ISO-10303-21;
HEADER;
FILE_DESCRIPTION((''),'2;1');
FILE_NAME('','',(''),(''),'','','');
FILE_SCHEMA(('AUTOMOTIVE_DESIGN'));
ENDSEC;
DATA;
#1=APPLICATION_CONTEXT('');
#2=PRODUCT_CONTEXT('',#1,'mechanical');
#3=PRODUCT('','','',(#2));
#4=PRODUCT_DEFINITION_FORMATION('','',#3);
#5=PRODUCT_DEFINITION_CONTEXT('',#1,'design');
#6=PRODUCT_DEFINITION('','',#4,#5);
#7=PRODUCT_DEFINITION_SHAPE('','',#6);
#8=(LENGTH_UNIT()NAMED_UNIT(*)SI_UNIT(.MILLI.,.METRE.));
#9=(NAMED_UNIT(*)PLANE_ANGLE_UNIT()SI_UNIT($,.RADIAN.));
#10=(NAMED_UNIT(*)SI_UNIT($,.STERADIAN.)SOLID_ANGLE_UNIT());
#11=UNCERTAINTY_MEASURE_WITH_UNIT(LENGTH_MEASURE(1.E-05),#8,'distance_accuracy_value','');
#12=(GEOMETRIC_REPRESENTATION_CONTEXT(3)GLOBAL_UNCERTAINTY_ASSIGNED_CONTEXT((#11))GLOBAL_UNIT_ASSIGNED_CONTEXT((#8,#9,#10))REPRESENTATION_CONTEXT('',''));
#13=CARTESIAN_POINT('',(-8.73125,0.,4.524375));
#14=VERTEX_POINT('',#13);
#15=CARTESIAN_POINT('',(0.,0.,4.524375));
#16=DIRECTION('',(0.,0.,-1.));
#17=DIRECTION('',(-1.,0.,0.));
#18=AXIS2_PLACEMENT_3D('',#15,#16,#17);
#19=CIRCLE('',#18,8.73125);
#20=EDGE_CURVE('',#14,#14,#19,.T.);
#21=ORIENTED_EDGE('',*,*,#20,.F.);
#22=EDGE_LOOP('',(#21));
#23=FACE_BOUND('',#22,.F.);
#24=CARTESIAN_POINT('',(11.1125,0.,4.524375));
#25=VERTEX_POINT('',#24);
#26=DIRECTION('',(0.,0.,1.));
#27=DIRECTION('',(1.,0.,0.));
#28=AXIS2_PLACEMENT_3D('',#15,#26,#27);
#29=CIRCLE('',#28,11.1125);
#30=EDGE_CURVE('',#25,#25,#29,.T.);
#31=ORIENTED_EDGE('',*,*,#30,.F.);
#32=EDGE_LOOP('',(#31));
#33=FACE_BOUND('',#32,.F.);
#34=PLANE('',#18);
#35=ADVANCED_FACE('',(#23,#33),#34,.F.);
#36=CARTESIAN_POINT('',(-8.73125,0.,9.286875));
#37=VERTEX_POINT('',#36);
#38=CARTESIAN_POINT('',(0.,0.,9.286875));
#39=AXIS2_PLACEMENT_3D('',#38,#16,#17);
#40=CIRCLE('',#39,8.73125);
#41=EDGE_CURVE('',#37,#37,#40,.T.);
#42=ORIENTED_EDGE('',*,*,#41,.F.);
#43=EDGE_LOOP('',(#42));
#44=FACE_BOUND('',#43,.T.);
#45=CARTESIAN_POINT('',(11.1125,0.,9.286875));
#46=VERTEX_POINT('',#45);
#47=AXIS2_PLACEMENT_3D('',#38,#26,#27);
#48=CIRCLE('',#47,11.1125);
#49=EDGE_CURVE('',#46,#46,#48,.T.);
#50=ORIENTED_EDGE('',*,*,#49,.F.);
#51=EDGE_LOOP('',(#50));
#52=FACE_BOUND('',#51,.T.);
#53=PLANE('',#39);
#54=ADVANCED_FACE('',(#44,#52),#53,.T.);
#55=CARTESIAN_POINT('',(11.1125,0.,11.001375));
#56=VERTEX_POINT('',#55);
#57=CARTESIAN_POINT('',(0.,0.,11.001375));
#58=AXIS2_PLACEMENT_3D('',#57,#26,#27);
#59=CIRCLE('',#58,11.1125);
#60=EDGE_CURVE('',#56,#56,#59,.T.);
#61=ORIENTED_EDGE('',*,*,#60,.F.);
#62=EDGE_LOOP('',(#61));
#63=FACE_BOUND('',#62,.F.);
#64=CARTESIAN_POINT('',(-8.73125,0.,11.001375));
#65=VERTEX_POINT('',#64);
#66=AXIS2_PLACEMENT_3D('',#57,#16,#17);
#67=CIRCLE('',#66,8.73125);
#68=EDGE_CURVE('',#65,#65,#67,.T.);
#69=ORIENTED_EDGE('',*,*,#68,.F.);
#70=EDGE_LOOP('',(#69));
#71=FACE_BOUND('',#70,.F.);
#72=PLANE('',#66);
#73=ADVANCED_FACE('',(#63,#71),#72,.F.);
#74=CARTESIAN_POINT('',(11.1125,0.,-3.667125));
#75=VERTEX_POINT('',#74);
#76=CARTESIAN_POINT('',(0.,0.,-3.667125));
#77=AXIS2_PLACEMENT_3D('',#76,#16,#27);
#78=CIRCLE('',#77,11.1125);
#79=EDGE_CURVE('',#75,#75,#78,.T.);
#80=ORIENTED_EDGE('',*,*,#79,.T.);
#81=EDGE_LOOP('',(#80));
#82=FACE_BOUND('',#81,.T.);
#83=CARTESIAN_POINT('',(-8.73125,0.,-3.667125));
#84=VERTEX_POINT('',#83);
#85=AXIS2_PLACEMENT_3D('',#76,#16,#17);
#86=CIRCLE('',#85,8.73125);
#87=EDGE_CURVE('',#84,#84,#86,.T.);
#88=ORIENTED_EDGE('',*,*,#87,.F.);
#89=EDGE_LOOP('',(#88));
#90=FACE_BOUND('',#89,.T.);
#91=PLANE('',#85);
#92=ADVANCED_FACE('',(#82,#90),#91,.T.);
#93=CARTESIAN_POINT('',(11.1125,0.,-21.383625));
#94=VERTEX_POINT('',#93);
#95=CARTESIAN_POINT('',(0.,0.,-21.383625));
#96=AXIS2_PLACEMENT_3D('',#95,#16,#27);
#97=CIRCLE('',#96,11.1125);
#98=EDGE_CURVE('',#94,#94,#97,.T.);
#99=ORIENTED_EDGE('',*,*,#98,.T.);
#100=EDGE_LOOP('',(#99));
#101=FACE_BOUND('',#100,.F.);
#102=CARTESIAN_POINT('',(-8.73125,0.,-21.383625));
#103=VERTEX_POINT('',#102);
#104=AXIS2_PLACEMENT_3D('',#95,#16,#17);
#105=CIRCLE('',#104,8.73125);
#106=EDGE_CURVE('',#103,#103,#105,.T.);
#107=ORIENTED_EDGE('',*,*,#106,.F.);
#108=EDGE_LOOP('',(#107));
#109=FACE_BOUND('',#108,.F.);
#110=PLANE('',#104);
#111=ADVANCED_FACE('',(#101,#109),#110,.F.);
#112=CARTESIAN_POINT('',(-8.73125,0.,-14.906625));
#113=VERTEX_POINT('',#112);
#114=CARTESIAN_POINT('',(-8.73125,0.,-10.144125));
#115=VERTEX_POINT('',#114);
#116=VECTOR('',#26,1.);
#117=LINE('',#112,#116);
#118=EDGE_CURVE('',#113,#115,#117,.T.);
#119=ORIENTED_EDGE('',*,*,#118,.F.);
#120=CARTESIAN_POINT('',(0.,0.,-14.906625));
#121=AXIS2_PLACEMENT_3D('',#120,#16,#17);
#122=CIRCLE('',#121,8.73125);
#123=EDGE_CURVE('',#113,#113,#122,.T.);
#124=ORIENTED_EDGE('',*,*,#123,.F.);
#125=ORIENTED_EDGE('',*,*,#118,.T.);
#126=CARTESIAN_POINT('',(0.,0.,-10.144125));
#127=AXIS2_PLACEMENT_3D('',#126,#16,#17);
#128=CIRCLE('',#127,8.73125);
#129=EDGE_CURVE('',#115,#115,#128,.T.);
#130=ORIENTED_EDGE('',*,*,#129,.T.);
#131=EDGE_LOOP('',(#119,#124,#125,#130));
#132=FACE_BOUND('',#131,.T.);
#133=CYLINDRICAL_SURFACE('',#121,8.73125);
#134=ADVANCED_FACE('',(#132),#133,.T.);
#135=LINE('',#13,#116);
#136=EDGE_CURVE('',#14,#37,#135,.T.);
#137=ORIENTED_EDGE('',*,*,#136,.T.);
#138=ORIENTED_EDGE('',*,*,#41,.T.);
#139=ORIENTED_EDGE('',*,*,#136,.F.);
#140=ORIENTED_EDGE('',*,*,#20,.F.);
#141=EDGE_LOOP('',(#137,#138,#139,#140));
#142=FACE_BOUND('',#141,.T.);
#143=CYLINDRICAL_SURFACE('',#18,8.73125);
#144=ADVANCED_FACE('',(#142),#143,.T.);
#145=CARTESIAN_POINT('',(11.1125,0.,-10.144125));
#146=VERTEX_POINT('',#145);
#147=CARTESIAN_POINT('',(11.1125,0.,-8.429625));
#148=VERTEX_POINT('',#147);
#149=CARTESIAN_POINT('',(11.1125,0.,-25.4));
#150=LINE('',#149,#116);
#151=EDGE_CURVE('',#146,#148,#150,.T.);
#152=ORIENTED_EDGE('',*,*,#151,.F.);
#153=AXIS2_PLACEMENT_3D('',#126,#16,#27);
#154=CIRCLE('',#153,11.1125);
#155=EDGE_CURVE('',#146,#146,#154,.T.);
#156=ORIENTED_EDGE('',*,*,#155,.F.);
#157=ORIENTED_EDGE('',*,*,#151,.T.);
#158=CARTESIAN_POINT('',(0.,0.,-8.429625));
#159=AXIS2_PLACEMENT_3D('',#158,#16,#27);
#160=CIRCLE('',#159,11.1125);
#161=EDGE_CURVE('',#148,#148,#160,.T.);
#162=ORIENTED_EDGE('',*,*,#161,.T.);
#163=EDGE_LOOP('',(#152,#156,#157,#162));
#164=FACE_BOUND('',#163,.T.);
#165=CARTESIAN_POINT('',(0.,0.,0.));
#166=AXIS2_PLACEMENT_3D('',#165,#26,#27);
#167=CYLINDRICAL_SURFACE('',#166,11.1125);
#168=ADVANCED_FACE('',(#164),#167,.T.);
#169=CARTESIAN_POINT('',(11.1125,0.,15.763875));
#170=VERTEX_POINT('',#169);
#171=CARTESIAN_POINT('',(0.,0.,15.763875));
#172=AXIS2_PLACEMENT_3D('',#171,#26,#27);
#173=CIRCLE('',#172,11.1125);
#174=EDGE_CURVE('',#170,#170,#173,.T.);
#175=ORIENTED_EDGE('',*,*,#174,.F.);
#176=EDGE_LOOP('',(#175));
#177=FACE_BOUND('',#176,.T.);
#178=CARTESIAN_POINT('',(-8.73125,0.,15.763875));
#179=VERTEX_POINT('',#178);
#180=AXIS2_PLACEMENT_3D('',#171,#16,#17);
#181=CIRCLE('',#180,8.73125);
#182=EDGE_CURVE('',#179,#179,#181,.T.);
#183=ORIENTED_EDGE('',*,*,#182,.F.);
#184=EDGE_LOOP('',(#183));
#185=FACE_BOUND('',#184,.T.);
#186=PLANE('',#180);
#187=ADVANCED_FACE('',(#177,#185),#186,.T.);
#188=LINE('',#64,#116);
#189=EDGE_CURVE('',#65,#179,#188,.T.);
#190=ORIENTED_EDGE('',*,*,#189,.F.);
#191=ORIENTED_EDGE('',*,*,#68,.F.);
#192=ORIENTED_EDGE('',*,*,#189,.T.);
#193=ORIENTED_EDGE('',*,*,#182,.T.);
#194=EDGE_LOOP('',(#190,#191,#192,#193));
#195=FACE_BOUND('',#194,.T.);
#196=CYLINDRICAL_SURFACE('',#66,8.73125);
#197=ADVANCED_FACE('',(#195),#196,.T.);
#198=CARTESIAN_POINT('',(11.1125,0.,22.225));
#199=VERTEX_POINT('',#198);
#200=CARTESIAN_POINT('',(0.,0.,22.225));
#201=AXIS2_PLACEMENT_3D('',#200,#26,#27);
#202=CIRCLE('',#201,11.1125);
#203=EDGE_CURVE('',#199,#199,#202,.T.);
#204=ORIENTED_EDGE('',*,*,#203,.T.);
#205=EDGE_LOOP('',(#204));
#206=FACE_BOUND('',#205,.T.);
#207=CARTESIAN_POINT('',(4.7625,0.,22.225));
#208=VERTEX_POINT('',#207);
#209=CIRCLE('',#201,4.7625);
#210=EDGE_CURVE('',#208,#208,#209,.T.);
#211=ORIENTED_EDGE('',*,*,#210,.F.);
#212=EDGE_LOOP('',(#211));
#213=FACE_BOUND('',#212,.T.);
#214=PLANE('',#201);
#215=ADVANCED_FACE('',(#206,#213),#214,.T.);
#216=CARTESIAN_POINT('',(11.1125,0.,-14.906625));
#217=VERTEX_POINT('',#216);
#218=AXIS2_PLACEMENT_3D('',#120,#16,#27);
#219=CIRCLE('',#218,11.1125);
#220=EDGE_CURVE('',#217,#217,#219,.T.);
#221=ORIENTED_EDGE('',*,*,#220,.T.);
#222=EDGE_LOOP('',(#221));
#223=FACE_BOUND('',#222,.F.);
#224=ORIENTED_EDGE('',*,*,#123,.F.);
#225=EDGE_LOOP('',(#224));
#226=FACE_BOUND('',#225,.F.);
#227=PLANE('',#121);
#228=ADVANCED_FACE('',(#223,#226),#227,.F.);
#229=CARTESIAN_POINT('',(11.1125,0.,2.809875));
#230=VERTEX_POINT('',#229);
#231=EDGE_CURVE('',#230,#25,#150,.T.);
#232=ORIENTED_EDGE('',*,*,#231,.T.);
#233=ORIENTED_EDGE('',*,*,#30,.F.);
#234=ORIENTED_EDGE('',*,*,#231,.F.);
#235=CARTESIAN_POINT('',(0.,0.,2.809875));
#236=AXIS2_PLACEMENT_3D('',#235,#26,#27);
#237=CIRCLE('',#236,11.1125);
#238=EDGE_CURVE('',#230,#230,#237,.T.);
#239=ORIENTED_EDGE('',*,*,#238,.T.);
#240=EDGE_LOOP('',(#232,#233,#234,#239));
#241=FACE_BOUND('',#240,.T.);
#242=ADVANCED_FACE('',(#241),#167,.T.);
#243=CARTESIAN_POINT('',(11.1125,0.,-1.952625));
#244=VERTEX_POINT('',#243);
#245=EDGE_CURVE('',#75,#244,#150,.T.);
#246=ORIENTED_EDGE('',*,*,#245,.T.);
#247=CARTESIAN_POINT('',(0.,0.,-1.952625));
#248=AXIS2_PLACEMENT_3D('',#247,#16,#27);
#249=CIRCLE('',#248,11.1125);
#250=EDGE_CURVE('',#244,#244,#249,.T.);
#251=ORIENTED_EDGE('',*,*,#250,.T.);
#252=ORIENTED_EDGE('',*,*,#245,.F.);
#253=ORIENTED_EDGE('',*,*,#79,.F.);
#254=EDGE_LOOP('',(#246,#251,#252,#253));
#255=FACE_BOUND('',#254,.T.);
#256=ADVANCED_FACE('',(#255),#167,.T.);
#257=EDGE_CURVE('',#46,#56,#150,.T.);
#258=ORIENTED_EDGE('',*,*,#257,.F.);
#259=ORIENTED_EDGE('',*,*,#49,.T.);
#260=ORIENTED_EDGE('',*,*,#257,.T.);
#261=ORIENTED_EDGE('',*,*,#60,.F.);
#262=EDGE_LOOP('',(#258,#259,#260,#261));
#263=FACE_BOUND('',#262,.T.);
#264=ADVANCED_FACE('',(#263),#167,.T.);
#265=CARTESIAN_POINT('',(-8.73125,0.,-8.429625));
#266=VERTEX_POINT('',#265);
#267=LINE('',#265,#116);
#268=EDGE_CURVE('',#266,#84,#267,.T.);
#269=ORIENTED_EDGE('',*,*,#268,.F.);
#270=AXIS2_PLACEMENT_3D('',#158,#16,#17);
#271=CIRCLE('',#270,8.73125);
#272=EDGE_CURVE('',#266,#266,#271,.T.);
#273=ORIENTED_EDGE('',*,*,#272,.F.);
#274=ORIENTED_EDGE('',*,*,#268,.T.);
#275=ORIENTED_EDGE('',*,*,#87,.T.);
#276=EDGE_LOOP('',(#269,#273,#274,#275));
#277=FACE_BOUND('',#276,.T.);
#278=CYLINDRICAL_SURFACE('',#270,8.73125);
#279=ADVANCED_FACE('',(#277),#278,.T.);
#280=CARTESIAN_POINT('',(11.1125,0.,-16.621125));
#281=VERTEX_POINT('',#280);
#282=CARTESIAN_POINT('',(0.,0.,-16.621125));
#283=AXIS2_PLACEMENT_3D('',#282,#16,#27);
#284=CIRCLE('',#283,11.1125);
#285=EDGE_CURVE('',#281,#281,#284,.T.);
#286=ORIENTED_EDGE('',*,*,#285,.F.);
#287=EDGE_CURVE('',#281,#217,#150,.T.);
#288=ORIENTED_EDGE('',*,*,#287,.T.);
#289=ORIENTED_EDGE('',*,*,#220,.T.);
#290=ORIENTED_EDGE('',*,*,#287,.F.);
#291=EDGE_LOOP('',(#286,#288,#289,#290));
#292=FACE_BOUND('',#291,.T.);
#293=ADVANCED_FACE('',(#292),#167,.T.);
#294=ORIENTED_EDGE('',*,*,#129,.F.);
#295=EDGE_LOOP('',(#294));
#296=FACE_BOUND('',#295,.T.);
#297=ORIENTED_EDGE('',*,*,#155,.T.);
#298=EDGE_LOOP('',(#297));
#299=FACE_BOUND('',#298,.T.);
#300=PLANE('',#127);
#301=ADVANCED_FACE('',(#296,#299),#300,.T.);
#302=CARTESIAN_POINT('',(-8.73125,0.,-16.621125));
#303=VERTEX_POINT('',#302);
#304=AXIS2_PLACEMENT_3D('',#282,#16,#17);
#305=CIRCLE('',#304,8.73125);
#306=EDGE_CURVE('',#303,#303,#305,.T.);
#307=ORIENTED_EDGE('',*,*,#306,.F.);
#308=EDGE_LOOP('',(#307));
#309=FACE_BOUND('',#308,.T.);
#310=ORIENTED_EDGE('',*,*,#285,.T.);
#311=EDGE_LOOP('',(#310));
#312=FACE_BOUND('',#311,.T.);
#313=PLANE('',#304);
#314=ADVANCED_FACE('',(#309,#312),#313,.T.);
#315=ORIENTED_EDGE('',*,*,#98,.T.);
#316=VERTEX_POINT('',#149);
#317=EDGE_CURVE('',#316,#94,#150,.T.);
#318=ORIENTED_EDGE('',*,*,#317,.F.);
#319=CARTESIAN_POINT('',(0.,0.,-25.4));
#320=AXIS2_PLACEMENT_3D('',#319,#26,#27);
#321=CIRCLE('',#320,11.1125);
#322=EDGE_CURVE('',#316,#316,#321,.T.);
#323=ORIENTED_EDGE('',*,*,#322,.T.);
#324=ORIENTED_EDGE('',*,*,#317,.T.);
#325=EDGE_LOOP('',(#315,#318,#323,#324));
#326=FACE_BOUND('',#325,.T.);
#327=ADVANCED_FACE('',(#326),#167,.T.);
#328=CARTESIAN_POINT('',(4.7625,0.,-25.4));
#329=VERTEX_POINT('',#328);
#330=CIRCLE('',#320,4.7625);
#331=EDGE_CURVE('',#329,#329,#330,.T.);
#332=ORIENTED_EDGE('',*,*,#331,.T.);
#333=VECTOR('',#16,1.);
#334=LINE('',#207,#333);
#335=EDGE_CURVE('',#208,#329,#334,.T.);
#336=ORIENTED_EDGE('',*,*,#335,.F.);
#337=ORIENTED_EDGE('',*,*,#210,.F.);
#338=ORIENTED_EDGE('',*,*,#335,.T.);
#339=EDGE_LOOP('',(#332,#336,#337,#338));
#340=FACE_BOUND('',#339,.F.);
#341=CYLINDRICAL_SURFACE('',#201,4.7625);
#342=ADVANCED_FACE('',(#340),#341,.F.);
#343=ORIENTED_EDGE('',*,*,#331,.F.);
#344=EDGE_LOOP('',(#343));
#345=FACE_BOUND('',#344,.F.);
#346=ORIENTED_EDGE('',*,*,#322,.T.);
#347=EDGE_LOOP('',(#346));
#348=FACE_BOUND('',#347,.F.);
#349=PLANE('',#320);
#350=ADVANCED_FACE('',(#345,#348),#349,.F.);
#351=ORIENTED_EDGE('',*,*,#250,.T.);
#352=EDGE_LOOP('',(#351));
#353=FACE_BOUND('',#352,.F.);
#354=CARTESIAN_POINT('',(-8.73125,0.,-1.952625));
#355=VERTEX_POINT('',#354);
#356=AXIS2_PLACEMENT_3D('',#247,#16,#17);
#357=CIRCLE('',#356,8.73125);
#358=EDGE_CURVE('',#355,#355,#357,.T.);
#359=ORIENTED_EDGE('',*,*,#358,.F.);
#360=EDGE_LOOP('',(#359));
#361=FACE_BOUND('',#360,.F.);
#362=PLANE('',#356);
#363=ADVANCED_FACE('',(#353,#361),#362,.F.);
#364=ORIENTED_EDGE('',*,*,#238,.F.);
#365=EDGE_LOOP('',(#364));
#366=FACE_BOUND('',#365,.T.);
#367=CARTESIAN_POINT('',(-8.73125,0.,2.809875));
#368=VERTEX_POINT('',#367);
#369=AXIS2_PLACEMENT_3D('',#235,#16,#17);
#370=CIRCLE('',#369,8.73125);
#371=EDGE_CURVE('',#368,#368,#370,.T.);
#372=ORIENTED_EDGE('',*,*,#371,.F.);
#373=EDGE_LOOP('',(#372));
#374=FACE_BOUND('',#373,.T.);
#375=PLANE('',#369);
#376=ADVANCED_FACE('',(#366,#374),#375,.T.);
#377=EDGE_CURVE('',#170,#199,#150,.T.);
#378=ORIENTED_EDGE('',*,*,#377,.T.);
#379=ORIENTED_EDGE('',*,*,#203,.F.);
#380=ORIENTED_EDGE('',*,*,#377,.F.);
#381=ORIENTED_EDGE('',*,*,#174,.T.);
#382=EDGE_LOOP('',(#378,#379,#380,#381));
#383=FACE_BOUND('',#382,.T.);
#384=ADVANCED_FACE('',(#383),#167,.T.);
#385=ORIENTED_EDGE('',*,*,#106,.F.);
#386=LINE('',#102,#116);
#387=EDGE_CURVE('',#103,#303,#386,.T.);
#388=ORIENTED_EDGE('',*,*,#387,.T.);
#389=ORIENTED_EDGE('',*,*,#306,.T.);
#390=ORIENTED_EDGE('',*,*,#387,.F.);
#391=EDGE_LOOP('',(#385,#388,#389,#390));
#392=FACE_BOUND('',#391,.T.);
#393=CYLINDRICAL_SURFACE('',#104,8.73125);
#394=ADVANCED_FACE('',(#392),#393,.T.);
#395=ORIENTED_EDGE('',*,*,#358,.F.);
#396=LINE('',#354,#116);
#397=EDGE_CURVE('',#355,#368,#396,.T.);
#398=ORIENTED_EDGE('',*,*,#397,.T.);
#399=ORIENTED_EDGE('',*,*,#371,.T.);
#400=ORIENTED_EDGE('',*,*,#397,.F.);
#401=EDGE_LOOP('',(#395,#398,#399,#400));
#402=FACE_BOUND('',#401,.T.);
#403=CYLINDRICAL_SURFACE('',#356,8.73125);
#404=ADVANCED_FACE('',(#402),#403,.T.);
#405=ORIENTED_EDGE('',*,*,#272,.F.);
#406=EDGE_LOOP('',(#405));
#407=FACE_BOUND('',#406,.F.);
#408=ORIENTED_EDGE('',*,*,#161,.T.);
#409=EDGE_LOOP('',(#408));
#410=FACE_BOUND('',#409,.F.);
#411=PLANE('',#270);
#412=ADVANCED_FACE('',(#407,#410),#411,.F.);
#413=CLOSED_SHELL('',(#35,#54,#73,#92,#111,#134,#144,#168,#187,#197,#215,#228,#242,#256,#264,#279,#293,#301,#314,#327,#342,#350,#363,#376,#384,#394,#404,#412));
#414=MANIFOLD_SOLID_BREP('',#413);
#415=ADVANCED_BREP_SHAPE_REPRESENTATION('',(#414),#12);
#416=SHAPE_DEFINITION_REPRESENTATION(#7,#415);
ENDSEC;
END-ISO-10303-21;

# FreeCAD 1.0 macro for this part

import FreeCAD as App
import Part
import Sketcher
from FreeCAD import Vector
Q = App.Units.Quantity

doc = App.newDocument("Part")
body = doc.addObject("PartDesign::Body", "Body")

# Sketch on XY plane
sketch1 = body.newObject("Sketcher::SketchObject", "Sketch")
sketch1.AttachmentSupport = (doc.getObject("XY_Plane"), [""])
sketch1.MapMode = "FlatFace"
sketch1.addGeometry([
    Part.Circle(Vector(0, 0, 0), Vector(0, 0, 1), 11.1125),
    Part.Circle(Vector(0, 0, 0), Vector(0, 0, 1), 3.2004),
], False)
sketch1.addConstraint([
    Sketcher.Constraint("Coincident", 0, 3, -1, 1),
    Sketcher.Constraint("Coincident", 1, 3, -1, 1),
    Sketcher.Constraint("Diameter", 0, Q("0.875 in")),
    Sketcher.Constraint("Diameter", 1, Q("0.252 in")),
])
pad1 = body.newObject("PartDesign::Pad", "Pad")
pad1.Profile = sketch1
pad1.Length = Q("2 in")
pad1.Midplane = True

# Sketch on XY plane
sketch2 = body.newObject("Sketcher::SketchObject", "Sketch001")
sketch2.AttachmentSupport = (doc.getObject("XY_Plane"), [""])
sketch2.MapMode = "FlatFace"
sketch2.AttachmentOffset = App.Placement(Vector(0, 0, 1 * 25.4), App.Rotation())
sketch2.addGeometry([
    Part.Circle(Vector(0, 0, 0), Vector(0, 0, 1), 11.1125),
    Part.Circle(Vector(0, 0, 0), Vector(0, 0, 1), 3.2004),
], False)
sketch2.addConstraint([
    Sketcher.Constraint("Coincident", 0, 3, -1, 1),
    Sketcher.Constraint("Coincident", 1, 3, -1, 1),
    Sketcher.Constraint("Diameter", 0, Q("0.875 in")),
    Sketcher.Constraint("Diameter", 1, Q("0.252 in")),
])
pocket1 = body.newObject("PartDesign::Pocket", "Pocket")
pocket1.Profile = sketch2
pocket1.Length = Q("0.125 in")

# Sketch on XY plane
sketch3 = body.newObject("Sketcher::SketchObject", "Sketch002")
sketch3.AttachmentSupport = (doc.getObject("XY_Plane"), [""])
sketch3.MapMode = "FlatFace"
sketch3.AttachmentOffset = App.Placement(Vector(0, 0, 0.875 * 25.4), App.Rotation())
sketch3.addGeometry(Part.Circle(Vector(0, 0, 0), Vector(0, 0, 1), 4.7625), False)
sketch3.addConstraint([
    Sketcher.Constraint("Coincident", 0, 3, -1, 1),
    Sketcher.Constraint("Diameter", 0, Q("0.375 in")),
])
pocket2 = body.newObject("PartDesign::Pocket", "Pocket001")
pocket2.Profile = sketch3
pocket2.Type = "ThroughAll"

# Sketch on XY plane
sketch4 = body.newObject("Sketcher::SketchObject", "Sketch003")
sketch4.AttachmentSupport = (doc.getObject("XY_Plane"), [""])
sketch4.MapMode = "FlatFace"
sketch4.AttachmentOffset = App.Placement(Vector(0, 0, -21.383625), App.Rotation())
sketch4.addGeometry([
    Part.Circle(Vector(0, 0, 0), Vector(0, 0, 1), 11.1125),
    Part.Circle(Vector(0, 0, 0), Vector(0, 0, 1), 8.73125),
], False)
sketch4.addConstraint([
    Sketcher.Constraint("Coincident", 0, 3, -1, 1),
    Sketcher.Constraint("Coincident", 1, 3, -1, 1),
    Sketcher.Constraint("Diameter", 0, Q("0.875 in")),
    Sketcher.Constraint("Diameter", 1, Q("0.6875 in")),
])
pocket3 = body.newObject("PartDesign::Pocket", "Pocket002")
pocket3.Profile = sketch4
pocket3.Length = Q("0.1875 in")
pocket3.Reversed = True
doc.recompute()

linearpattern = body.newObject("PartDesign::LinearPattern", "LinearPattern")
linearpattern.Originals = [pocket3]
linearpattern.Direction = (doc.getObject("Z_Axis"), [""])
linearpattern.Mode = "offset"
linearpattern.Offset = Q("0.255 in")
linearpattern.Occurrences = 6
body.Tip = linearpattern

doc.recompute()
